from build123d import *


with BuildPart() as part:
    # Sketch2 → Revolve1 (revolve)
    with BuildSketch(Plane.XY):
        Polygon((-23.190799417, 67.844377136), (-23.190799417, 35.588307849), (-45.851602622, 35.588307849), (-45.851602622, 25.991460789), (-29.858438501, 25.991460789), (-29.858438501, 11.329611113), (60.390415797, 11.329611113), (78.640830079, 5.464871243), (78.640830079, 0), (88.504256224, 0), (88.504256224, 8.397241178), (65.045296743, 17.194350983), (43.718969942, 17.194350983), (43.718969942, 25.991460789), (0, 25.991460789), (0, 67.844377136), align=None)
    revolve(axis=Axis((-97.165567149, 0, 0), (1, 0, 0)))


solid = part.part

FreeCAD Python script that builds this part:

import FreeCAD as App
import Part
import Sketcher
Q = App.Units.Quantity

doc = App.newDocument("Part")
params = doc.addObject("Spreadsheet::Sheet", "Params")
for row, (alias, value) in enumerate([
    ("revolution_angle", "360 deg"),
], start=1):
    params.set(f"A{row}", alias)
    params.set(f"B{row}", "=" + value)
    params.setAlias(f"B{row}", alias)

body = doc.addObject("PartDesign::Body", "Body")

sketch1 = body.newObject("Sketcher::SketchObject", "Sketch")
sketch1.AttachmentSupport = (doc.getObject("XY_Plane"), [""])
sketch1.MapMode = "FlatFace"
sketch1.addGeometry([
    Part.LineSegment(App.Vector(-23.190799, 67.844377, 0), App.Vector(-23.190799, 35.588308, 0)),
    Part.LineSegment(App.Vector(-23.190799, 35.588308, 0), App.Vector(-45.851603, 35.588308, 0)),
    Part.LineSegment(App.Vector(-45.851603, 35.588308, 0), App.Vector(-45.851603, 25.991461, 0)),
    Part.LineSegment(App.Vector(-45.851603, 25.991461, 0), App.Vector(-29.858439, 25.991461, 0)),
    Part.LineSegment(App.Vector(-29.858439, 25.991461, 0), App.Vector(-29.858439, 11.329611, 0)),
    Part.LineSegment(App.Vector(-29.858439, 11.329611, 0), App.Vector(60.390416, 11.329611, 0)),
    Part.LineSegment(App.Vector(60.390416, 11.329611, 0), App.Vector(78.64083, 5.464871, 0)),
    Part.LineSegment(App.Vector(78.64083, 5.464871, 0), App.Vector(78.64083, 0, 0)),
    Part.LineSegment(App.Vector(78.64083, 0, 0), App.Vector(88.504256, 0, 0)),
    Part.LineSegment(App.Vector(88.504256, 0, 0), App.Vector(88.504256, 8.397241, 0)),
    Part.LineSegment(App.Vector(88.504256, 8.397241, 0), App.Vector(65.045297, 17.194351, 0)),
    Part.LineSegment(App.Vector(65.045297, 17.194351, 0), App.Vector(43.71897, 17.194351, 0)),
    Part.LineSegment(App.Vector(43.71897, 17.194351, 0), App.Vector(43.71897, 25.991461, 0)),
    Part.LineSegment(App.Vector(43.71897, 25.991461, 0), App.Vector(0, 25.991461, 0)),
    Part.LineSegment(App.Vector(0, 25.991461, 0), App.Vector(0, 67.844377, 0)),
    Part.LineSegment(App.Vector(0, 67.844377, 0), App.Vector(-23.190799, 67.844377, 0)),
], False)
sketch1.addConstraint([
    Sketcher.Constraint("Coincident", 0, 2, 1, 1),
    Sketcher.Constraint("Coincident", 1, 2, 2, 1),
    Sketcher.Constraint("Coincident", 2, 2, 3, 1),
    Sketcher.Constraint("Coincident", 3, 2, 4, 1),
    Sketcher.Constraint("Coincident", 4, 2, 5, 1),
    Sketcher.Constraint("Coincident", 5, 2, 6, 1),
    Sketcher.Constraint("Coincident", 6, 2, 7, 1),
    Sketcher.Constraint("Coincident", 7, 2, 8, 1),
    Sketcher.Constraint("Coincident", 8, 2, 9, 1),
    Sketcher.Constraint("Coincident", 9, 2, 10, 1),
    Sketcher.Constraint("Coincident", 10, 2, 11, 1),
    Sketcher.Constraint("Coincident", 11, 2, 12, 1),
    Sketcher.Constraint("Coincident", 12, 2, 13, 1),
    Sketcher.Constraint("Coincident", 13, 2, 14, 1),
    Sketcher.Constraint("Coincident", 14, 2, 15, 1),
    Sketcher.Constraint("Coincident", 15, 2, 0, 1),
    Sketcher.Constraint("Vertical", 0),
    Sketcher.Constraint("Horizontal", 1),
    Sketcher.Constraint("Vertical", 2),
    Sketcher.Constraint("Horizontal", 3),
    Sketcher.Constraint("Vertical", 4),
    Sketcher.Constraint("Horizontal", 5),
    Sketcher.Constraint("Vertical", 7),
    Sketcher.Constraint("Horizontal", 8),
    Sketcher.Constraint("Vertical", 9),
    Sketcher.Constraint("Horizontal", 11),
    Sketcher.Constraint("Vertical", 12),
    Sketcher.Constraint("Horizontal", 13),
    Sketcher.Constraint("Vertical", 14),
    Sketcher.Constraint("Horizontal", 15),
    Sketcher.Constraint("PointOnObject", 7, 2, -1),
    Sketcher.Constraint("PointOnObject", 13, 2, -2),
    Sketcher.Constraint("Horizontal", 3, 2, 12, 2),
    Sketcher.Constraint("DistanceX", 15, 2, 15, 1, Q("23.190799 mm")),
    Sketcher.Constraint("DistanceX", 13, 2, 13, 1, Q("43.71897 mm")),
    Sketcher.Constraint("DistanceY", 0, 2, 0, 1, Q("32.256069 mm")),
    Sketcher.Constraint("DistanceY", 4, 2, 4, 1, Q("14.66185 mm")),
    Sketcher.Constraint("DistanceY", 7, 2, 7, 1, Q("5.464871 mm")),
    Sketcher.Constraint("DistanceY", 9, 1, 9, 2, Q("8.397241 mm")),
    Sketcher.Constraint("DistanceY", 12, 1, 12, 2, Q("8.79711 mm")),
    Sketcher.Constraint("Distance", 6, Q("19.16958 mm")),
    Sketcher.Constraint("Distance", 10, Q("25.05418 mm")),
    Sketcher.Constraint("DistanceX", 1, 2, 1, 1, Q("22.660803 mm")),
    Sketcher.Constraint("DistanceX", 3, 1, 3, 2, Q("15.993164 mm")),
    Sketcher.Constraint("DistanceX", 5, 1, 5, 2, Q("90.248854 mm")),
    Sketcher.Constraint("DistanceX", 8, 1, 8, 2, Q("9.863426 mm")),
    Sketcher.Constraint("DistanceX", 11, 2, 11, 1, Q("21.326327 mm")),
    Sketcher.Constraint("DistanceY", 2, 2, 2, 1, Q("9.596847 mm")),
])
revolution = body.newObject("PartDesign::Revolution", "Revolution")
revolution.Profile = sketch1
revolution.ReferenceAxis = (sketch1, ["H_Axis"])
revolution.setExpression("Angle", "Params.revolution_angle")

doc.recompute()
